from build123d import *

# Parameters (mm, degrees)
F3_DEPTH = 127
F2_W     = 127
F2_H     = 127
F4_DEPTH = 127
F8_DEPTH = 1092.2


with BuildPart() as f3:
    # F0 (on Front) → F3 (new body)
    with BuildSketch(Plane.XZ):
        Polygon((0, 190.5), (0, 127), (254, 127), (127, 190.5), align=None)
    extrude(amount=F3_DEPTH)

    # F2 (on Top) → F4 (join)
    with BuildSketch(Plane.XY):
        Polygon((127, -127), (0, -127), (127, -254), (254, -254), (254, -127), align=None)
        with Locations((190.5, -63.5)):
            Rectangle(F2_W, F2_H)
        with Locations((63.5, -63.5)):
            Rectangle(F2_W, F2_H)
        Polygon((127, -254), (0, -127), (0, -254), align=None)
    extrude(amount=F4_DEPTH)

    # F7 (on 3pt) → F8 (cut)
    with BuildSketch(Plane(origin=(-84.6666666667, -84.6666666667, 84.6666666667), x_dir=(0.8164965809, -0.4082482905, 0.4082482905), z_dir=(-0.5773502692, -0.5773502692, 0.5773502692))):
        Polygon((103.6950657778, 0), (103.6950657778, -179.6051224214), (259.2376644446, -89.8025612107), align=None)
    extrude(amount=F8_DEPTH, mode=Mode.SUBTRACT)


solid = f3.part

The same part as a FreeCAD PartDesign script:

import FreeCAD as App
import Part
import Sketcher
Q = App.Units.Quantity

doc = App.newDocument("Part")
params = doc.addObject("Spreadsheet::Sheet", "Params")
for row, (alias, value) in enumerate([
    ("sketch1_width", "10 in"),
    ("sketch1_width2", "5 in"),
    ("sketch1_height", "2.5 in"),
    ("pad1_length", "5 in"),
    ("sketch2_width", "10 in"),
    ("pad2_length", "5 in"),
    ("pocket1_length", "43 in"),
], start=1):
    params.set(f"A{row}", alias)
    params.set(f"B{row}", "=" + value)
    params.setAlias(f"B{row}", alias)

body = doc.addObject("PartDesign::Body", "Body")

# Sketch on XZ plane
sketch1 = body.newObject("Sketcher::SketchObject", "Sketch")
sketch1.AttachmentSupport = (doc.getObject("XZ_Plane"), [""])
sketch1.MapMode = "FlatFace"
sketch1.addGeometry([
    Part.LineSegment(App.Vector(0, 190, 0), App.Vector(0, 127, 0)),
    Part.LineSegment(App.Vector(0, 127, 0), App.Vector(254, 127, 0)),
    Part.LineSegment(App.Vector(254, 127, 0), App.Vector(127, 190, 0)),
    Part.LineSegment(App.Vector(127, 190, 0), App.Vector(0, 190, 0)),
], False)
sketch1.addConstraint([
    Sketcher.Constraint("Coincident", 0, 2, 1, 1),
    Sketcher.Constraint("Coincident", 1, 2, 2, 1),
    Sketcher.Constraint("Coincident", 2, 2, 3, 1),
    Sketcher.Constraint("Coincident", 3, 2, 0, 1),
    Sketcher.Constraint("Vertical", 0),
    Sketcher.Constraint("Horizontal", 1),
    Sketcher.Constraint("Horizontal", 3),
    Sketcher.Constraint("PointOnObject", 0, 2, -2),
    Sketcher.Constraint("DistanceX", 1, 1, 1, 2, Q("10 in")),
    Sketcher.Constraint("DistanceX", 3, 2, 3, 1, Q("5 in")),
    Sketcher.Constraint("DistanceY", 0, 2, 0, 1, Q("2.5 in")),
    Sketcher.Constraint("DistanceY", -1, 1, 0, 2, Q("5 in")),
])
sketch1.setExpression("Constraints[8]", "Params.sketch1_width")
sketch1.setExpression("Constraints[9]", "Params.sketch1_width2")
sketch1.setExpression("Constraints[10]", "Params.sketch1_height")
pad1 = body.newObject("PartDesign::Pad", "Pad")
pad1.Profile = sketch1
pad1.setExpression("Length", "Params.pad1_length")

# Sketch on XY plane
sketch2 = body.newObject("Sketcher::SketchObject", "Sketch001")
sketch2.AttachmentSupport = (doc.getObject("XY_Plane"), [""])
sketch2.MapMode = "FlatFace"
sketch2.addGeometry([
    Part.LineSegment(App.Vector(254, -254, 0), App.Vector(254, 0, 0)),
    Part.LineSegment(App.Vector(254, 0, 0), App.Vector(0, 0, 0)),
    Part.LineSegment(App.Vector(0, 0, 0), App.Vector(0, -254, 0)),
    Part.LineSegment(App.Vector(0, -254, 0), App.Vector(254, -254, 0)),
], False)
sketch2.addConstraint([
    Sketcher.Constraint("Coincident", 0, 2, 1, 1),
    Sketcher.Constraint("Coincident", 1, 2, 2, 1),
    Sketcher.Constraint("Coincident", 2, 2, 3, 1),
    Sketcher.Constraint("Coincident", 3, 2, 0, 1),
    Sketcher.Constraint("Vertical", 0),
    Sketcher.Constraint("Horizontal", 1),
    Sketcher.Constraint("Vertical", 2),
    Sketcher.Constraint("Horizontal", 3),
    Sketcher.Constraint("Coincident", 1, 2, -1, 1),
    Sketcher.Constraint("Equal", 3, 0),
    Sketcher.Constraint("DistanceX", 1, 2, 1, 1, Q("10 in")),
])
sketch2.setExpression("Constraints[10]", "Params.sketch2_width")
pad2 = body.newObject("PartDesign::Pad", "Pad001")
pad2.Profile = sketch2
pad2.setExpression("Length", "Params.pad2_length")

# Sketch on an angled plane
sketch3 = body.newObject("Sketcher::SketchObject", "Sketch002")
sketch3.Placement = App.Placement(App.Vector(-84.666667, -84.666667, 84.666667), App.Rotation(App.Vector(0.816496581, -0.40824829, 0.40824829), App.Vector(0, 0.707106781, 0.707106781), App.Vector(-0.577350269, -0.577350269, 0.577350269), "ZXY"))
sketch3.addGeometry([
    Part.LineSegment(App.Vector(104, 0, 0), App.Vector(104, -180, 0)),
    Part.LineSegment(App.Vector(104, -180, 0), App.Vector(259, -90, 0)),
    Part.LineSegment(App.Vector(259, -90, 0), App.Vector(104, 0, 0)),
], False)
sketch3.addConstraint([
    Sketcher.Constraint("Coincident", 0, 2, 1, 1),
    Sketcher.Constraint("Coincident", 1, 2, 2, 1),
    Sketcher.Constraint("Coincident", 2, 2, 0, 1),
    Sketcher.Constraint("Vertical", 0),
    Sketcher.Constraint("PointOnObject", 2, 2, -1),
    Sketcher.Constraint("Equal", 1, 2),
    Sketcher.Constraint("Angle", 1, Q("30 deg")),
    Sketcher.Constraint("DistanceX", 0, 2, 1, 2, 155.542599),
    Sketcher.Constraint("DistanceX", -1, 1, 0, 2, 103.695066),
])
pocket1 = body.newObject("PartDesign::Pocket", "Pocket")
pocket1.Profile = sketch3
pocket1.setExpression("Length", "Params.pocket1_length")
pocket1.Reversed = True

doc.recompute()
